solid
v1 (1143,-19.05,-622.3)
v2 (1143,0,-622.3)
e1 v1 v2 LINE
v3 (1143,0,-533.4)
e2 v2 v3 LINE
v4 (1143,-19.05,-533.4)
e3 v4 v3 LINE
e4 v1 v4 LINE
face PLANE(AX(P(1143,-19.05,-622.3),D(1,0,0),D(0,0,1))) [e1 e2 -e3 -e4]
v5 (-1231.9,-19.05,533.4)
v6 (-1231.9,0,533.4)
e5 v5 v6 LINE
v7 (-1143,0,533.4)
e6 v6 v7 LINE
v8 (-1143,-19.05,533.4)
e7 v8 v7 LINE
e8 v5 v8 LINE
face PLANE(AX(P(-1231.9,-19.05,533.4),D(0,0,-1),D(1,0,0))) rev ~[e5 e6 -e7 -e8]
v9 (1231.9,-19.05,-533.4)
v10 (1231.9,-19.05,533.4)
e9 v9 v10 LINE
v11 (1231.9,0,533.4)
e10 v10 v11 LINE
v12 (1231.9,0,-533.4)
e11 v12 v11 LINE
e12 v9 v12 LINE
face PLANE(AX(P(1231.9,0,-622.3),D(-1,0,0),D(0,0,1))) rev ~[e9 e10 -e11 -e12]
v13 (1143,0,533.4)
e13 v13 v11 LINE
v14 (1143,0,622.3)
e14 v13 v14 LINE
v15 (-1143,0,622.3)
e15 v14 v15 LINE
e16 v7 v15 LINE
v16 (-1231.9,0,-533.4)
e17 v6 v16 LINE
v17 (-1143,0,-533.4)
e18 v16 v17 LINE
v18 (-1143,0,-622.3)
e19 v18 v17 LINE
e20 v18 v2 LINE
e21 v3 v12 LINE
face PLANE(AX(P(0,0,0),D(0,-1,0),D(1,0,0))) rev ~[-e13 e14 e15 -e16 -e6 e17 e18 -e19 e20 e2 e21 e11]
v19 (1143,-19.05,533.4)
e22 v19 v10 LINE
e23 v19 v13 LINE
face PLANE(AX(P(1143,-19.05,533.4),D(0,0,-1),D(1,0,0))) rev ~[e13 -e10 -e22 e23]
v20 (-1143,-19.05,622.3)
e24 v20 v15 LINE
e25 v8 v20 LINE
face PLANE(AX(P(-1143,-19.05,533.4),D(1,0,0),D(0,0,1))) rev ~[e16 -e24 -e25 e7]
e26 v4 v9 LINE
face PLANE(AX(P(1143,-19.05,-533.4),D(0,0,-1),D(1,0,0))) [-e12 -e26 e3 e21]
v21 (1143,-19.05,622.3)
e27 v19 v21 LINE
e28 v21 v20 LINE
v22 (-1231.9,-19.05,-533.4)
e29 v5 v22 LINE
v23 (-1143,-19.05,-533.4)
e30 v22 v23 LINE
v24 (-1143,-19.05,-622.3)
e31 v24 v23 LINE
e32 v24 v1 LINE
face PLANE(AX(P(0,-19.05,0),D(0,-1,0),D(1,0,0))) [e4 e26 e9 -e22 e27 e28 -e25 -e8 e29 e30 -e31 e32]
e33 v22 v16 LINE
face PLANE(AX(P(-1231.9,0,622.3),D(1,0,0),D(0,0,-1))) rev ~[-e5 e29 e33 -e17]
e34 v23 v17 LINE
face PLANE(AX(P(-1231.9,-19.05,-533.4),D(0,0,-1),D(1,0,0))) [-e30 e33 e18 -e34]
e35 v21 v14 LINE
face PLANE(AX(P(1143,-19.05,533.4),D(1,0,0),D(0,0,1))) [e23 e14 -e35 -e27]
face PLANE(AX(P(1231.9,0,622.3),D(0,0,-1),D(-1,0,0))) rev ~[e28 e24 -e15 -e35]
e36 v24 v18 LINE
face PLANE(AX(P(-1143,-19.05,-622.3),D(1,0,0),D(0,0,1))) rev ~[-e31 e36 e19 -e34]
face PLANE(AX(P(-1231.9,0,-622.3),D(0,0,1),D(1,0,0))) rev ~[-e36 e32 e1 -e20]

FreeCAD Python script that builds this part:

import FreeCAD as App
import Part
import Sketcher

V = App.Vector
Q = App.Units.Quantity


def add_polygon(sketch, points):
    """Adds a closed chain of lines whose ends are joined by coincident constraints."""
    first, n = sketch.GeometryCount, len(points)
    for a, b in zip(points, points[1:] + points[:1]):
        sketch.addGeometry(Part.LineSegment(App.Vector(*a, 0), App.Vector(*b, 0)), False)
    for i in range(n):
        sketch.addConstraint(Sketcher.Constraint("Coincident", first + i, 2, first + (i + 1) % n, 1))

doc = App.newDocument("Part")
body = doc.addObject("PartDesign::Body", "Body")

# Sketch on XZ plane
sketch1 = body.newObject("Sketcher::SketchObject", "Sketch")
sketch1.AttachmentSupport = (doc.getObject("XZ_Plane"), [""])
sketch1.MapMode = "FlatFace"
add_polygon(sketch1, [(1232, 622), (-1232, 622), (-1232, -622), (1232, -622)])  # lines 0-3
sketch1.addConstraint([
    Sketcher.Constraint("Horizontal", 0),
    Sketcher.Constraint("Vertical", 1),
    Sketcher.Constraint("Horizontal", 2),
    Sketcher.Constraint("Vertical", 3),
    Sketcher.Constraint("Symmetric", 0, 2, 2, 2, -1, 1),
    Sketcher.Constraint("DistanceX", 0, 2, 0, 1, Q("97 in")),
    Sketcher.Constraint("DistanceY", 1, 2, 1, 1, Q("49 in")),
])
pad1 = body.newObject("PartDesign::Pad", "Pad")
pad1.Profile = sketch1
pad1.Length = Q("0.75 in")

# Sketch on XZ plane
sketch2 = body.newObject("Sketcher::SketchObject", "Sketch001")
sketch2.AttachmentSupport = (doc.getObject("XZ_Plane"), [""])
sketch2.MapMode = "FlatFace"
sketch2.AttachmentOffset = App.Placement(V(0, 0, 0.75 * 25.4), App.Rotation())
add_polygon(sketch2, [(-1232, 622), (-1232, 533), (-1143, 533), (-1143, 622)])  # lines 0-3
add_polygon(sketch2, [(1143, 622), (1143, 533), (1232, 533), (1232, 622)])  # lines 4-7
add_polygon(sketch2, [(1143, -533), (1143, -622), (1232, -622), (1232, -533)])  # lines 8-11
add_polygon(sketch2, [(-1232, -533), (-1232, -622), (-1143, -622), (-1143, -533)])  # lines 12-15
sketch2.addConstraint([
    Sketcher.Constraint("Vertical", 0),
    Sketcher.Constraint("Horizontal", 1),
    Sketcher.Constraint("Vertical", 2),
    Sketcher.Constraint("Horizontal", 3),
    Sketcher.Constraint("Vertical", 4),
    Sketcher.Constraint("Horizontal", 5),
    Sketcher.Constraint("Vertical", 6),
    Sketcher.Constraint("Horizontal", 7),
    Sketcher.Constraint("Vertical", 8),
    Sketcher.Constraint("Horizontal", 9),
    Sketcher.Constraint("Vertical", 10),
    Sketcher.Constraint("Horizontal", 11),
    Sketcher.Constraint("Vertical", 12),
    Sketcher.Constraint("Horizontal", 13),
    Sketcher.Constraint("Vertical", 14),
    Sketcher.Constraint("Horizontal", 15),
    Sketcher.Constraint("Symmetric", 2, 2, 8, 2, -1, 1),
    Sketcher.Constraint("Symmetric", 0, 2, 10, 2, -1, 1),
    Sketcher.Constraint("Symmetric", 6, 2, 12, 2, -1, 1),
    Sketcher.Constraint("Symmetric", 4, 2, 14, 2, -1, 1),
    Sketcher.Constraint("Symmetric", 1, 2, 4, 2, -2),
    Sketcher.Constraint("Symmetric", 3, 2, 6, 2, -2),
    Sketcher.Constraint("Equal", 15, 0),
    Sketcher.Constraint("DistanceX", 1, 1, 1, 2, Q("3.5 in")),
    Sketcher.Constraint("DistanceY", -1, 1, 0, 2, Q("21 in")),
    Sketcher.Constraint("DistanceX", 1, 2, -1, 1, Q("45 in")),
])
pocket1 = body.newObject("PartDesign::Pocket", "Pocket")
pocket1.Profile = sketch2
pocket1.Length = Q("1 in")

doc.recompute()
